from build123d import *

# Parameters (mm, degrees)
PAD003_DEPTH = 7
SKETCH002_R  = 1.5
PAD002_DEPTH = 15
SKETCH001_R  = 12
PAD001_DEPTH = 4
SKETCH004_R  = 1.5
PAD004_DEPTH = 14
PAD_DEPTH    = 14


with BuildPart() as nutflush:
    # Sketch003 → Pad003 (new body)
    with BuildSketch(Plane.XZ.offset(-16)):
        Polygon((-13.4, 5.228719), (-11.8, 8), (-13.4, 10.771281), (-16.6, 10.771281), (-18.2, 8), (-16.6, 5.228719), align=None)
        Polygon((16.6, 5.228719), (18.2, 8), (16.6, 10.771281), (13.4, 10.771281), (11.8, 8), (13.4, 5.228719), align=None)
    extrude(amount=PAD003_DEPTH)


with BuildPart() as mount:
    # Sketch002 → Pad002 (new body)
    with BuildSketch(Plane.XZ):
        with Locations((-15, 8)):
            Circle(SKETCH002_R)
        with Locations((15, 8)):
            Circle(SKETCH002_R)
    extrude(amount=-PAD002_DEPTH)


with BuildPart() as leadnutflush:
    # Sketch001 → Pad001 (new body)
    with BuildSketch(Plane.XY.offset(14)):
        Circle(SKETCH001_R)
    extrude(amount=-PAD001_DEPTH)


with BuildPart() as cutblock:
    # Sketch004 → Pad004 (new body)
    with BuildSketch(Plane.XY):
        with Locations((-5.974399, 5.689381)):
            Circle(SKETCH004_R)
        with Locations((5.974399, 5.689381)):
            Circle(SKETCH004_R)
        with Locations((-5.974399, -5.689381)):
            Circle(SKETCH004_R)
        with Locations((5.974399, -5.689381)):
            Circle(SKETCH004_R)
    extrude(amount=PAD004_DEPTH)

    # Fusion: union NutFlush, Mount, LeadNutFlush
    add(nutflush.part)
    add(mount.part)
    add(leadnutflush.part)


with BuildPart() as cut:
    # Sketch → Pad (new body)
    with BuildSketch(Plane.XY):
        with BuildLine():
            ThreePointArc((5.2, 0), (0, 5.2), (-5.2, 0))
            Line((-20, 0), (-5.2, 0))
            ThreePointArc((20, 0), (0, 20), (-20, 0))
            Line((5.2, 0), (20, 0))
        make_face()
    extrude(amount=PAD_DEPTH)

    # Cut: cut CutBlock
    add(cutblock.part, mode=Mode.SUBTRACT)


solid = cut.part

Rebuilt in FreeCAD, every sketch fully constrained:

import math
import FreeCAD as App
import Part
import Sketcher

V = App.Vector
Q = App.Units.Quantity


def add_polygon(sketch, points):
    """Adds a closed chain of lines whose ends are joined by coincident constraints."""
    first, n = sketch.GeometryCount, len(points)
    for a, b in zip(points, points[1:] + points[:1]):
        sketch.addGeometry(Part.LineSegment(App.Vector(*a, 0), App.Vector(*b, 0)), False)
    for i in range(n):
        sketch.addConstraint(Sketcher.Constraint("Coincident", first + i, 2, first + (i + 1) % n, 1))

doc = App.newDocument("Part")
params = doc.addObject("Spreadsheet::Sheet", "Params")
for row, (alias, value) in enumerate([
    ("sketch1_width", "3.2 mm"),
    ("sketch1_length", "3.2 mm"),
    ("pad1_length", "7 mm"),
    ("sketch2_diameter", "3 mm"),
    ("pad2_length", "15 mm"),
    ("sketch3_diameter", "24 mm"),
    ("pad3_length", "4 mm"),
    ("sketch4_diameter", "3 mm"),
    ("pad4_length", "14 mm"),
    ("sketch5_radius", "20 mm"),
    ("sketch5_radius2", "5.2 mm"),
    ("pad5_length", "14 mm"),
], start=1):
    params.set(f"A{row}", alias)
    params.set(f"B{row}", "=" + value)
    params.setAlias(f"B{row}", alias)

body = doc.addObject("PartDesign::Body", "Body")
body.AllowCompound = True

sketch1 = body.newObject("Sketcher::SketchObject", "Sketch")
sketch1.AttachmentSupport = (doc.getObject("XZ_Plane"), [""])
sketch1.MapMode = "FlatFace"
sketch1.AttachmentOffset = App.Placement(V(0, 0, -16), App.Rotation())
add_polygon(sketch1, [(-13.4, 5.2), (-11.8, 8), (-13.4, 10.8), (-16.6, 10.8), (-18.2, 8), (-16.6, 5.2)])
add_polygon(sketch1, [(16.6, 5.2), (18.2, 8), (16.6, 10.8), (13.4, 10.8), (11.8, 8), (13.4, 5.2)])
sketch1.addConstraint(Sketcher.Constraint("Horizontal", 2))
sketch1.addConstraint(Sketcher.Constraint("Horizontal", 5))
sketch1.addConstraint(Sketcher.Constraint("Horizontal", 8))
sketch1.addConstraint(Sketcher.Constraint("Horizontal", 11))
sketch1.addConstraint(Sketcher.Constraint("Symmetric", 3, 2, 6, 2, -2))
sketch1.addConstraint(Sketcher.Constraint("Symmetric", 2, 2, 7, 2, -2))
sketch1.addConstraint(Sketcher.Constraint("Symmetric", 0, 2, 9, 2, -2))
sketch1.addConstraint(Sketcher.Constraint("Symmetric", 5, 2, 10, 2, -2))
sketch1.addConstraint(Sketcher.Constraint("Parallel", 0, 3))
sketch1.addConstraint(Sketcher.Constraint("Parallel", 1, 4))
sketch1.addConstraint(Sketcher.Constraint("Parallel", 3, 6))
sketch1.addConstraint(Sketcher.Constraint("Parallel", 4, 7))
sketch1.addConstraint(Sketcher.Constraint("Parallel", 6, 9))
sketch1.addConstraint(Sketcher.Constraint("Horizontal", 0, 2, 3, 2))
sketch1.addConstraint(Sketcher.Constraint("Vertical", 2, 2, 4, 2))
sketch1.addConstraint(Sketcher.Constraint("Angle", 0, Q("59.999997 deg")))
sketch1.addConstraint(Sketcher.Constraint("DistanceX", 2, 2, 2, 1, 3.2))
sketch1.addConstraint(Sketcher.Constraint("DistanceY", -1, 1, 0, 2, 8.0))
sketch1.addConstraint(Sketcher.Constraint("DistanceX", 0, 2, 6, 2, 30.0))
sketch1.addConstraint(Sketcher.Constraint("Distance", 0, 3.2))
sketch1.setExpression("Constraints[28]", "Params.sketch1_width")
sketch1.setExpression("Constraints[31]", "Params.sketch1_length")
pad1 = body.newObject("PartDesign::Pad", "Pad")
pad1.Profile = sketch1
pad1.setExpression("Length", "Params.pad1_length")
body2 = doc.addObject("PartDesign::Body", "Body001")
body2.AllowCompound = True

sketch2 = body2.newObject("Sketcher::SketchObject", "Sketch001")
sketch2.AttachmentSupport = (doc.getObject("XZ_Plane001"), [""])
sketch2.MapMode = "FlatFace"
sketch2.addGeometry(Part.Circle(V(-15, 8, 0), V(0, 0, 1), 1.5), False)
sketch2.addGeometry(Part.Circle(V(15, 8, 0), V(0, 0, 1), 1.5), False)
sketch2.addConstraint(Sketcher.Constraint("Equal", 0, 1))
sketch2.addConstraint(Sketcher.Constraint("Symmetric", 0, 3, 1, 3, -2))
sketch2.addConstraint(Sketcher.Constraint("Diameter", 0, 3.0))
sketch2.addConstraint(Sketcher.Constraint("DistanceX", 0, 3, -1, 1, 15.0))
sketch2.addConstraint(Sketcher.Constraint("DistanceY", -1, 1, 0, 3, 8.0))
sketch2.setExpression("Constraints[2]", "Params.sketch2_diameter")
pad2 = body2.newObject("PartDesign::Pad", "Pad001")
pad2.Profile = sketch2
pad2.setExpression("Length", "Params.pad2_length")
pad2.Reversed = True
body3 = doc.addObject("PartDesign::Body", "Body002")

sketch3 = body3.newObject("Sketcher::SketchObject", "Sketch002")
sketch3.AttachmentSupport = (doc.getObject("XY_Plane002"), [""])
sketch3.MapMode = "FlatFace"
sketch3.AttachmentOffset = App.Placement(V(0, 0, 14), App.Rotation())
sketch3.addGeometry(Part.Circle(V(0, 0, 0), V(0, 0, 1), 12), False)
sketch3.addConstraint(Sketcher.Constraint("Coincident", 0, 3, -1, 1))
sketch3.addConstraint(Sketcher.Constraint("Diameter", 0, 24.0))
sketch3.setExpression("Constraints[1]", "Params.sketch3_diameter")
pad3 = body3.newObject("PartDesign::Pad", "Pad002")
pad3.Profile = sketch3
pad3.setExpression("Length", "Params.pad3_length")
pad3.Reversed = True
body4 = doc.addObject("PartDesign::Body", "Body003")
body4.AllowCompound = True

sketch4 = body4.newObject("Sketcher::SketchObject", "Sketch003")
sketch4.AttachmentSupport = (doc.getObject("XY_Plane003"), [""])
sketch4.MapMode = "FlatFace"
sketch4.addGeometry(Part.Circle(V(-6, 5.7, 0), V(0, 0, 1), 1.5), False)
sketch4.addGeometry(Part.Circle(V(6, 5.7, 0), V(0, 0, 1), 1.5), False)
sketch4.addGeometry(Part.Circle(V(-6, -5.7, 0), V(0, 0, 1), 1.5), False)
sketch4.addGeometry(Part.Circle(V(6, -5.7, 0), V(0, 0, 1), 1.5), False)
sketch4.addConstraint(Sketcher.Constraint("Equal", 0, 1))
sketch4.addConstraint(Sketcher.Constraint("Equal", 1, 2))
sketch4.addConstraint(Sketcher.Constraint("Equal", 2, 3))
sketch4.addConstraint(Sketcher.Constraint("Symmetric", 1, 3, 2, 3, -1, 1))
sketch4.addConstraint(Sketcher.Constraint("Symmetric", 0, 3, 3, 3, -1, 1))
sketch4.addConstraint(Sketcher.Constraint("Symmetric", 0, 3, 1, 3, -2))
sketch4.addConstraint(Sketcher.Constraint("Diameter", 0, 3.0))
sketch4.addConstraint(Sketcher.Constraint("DistanceX", 0, 3, -1, 1, 5.974399))
sketch4.addConstraint(Sketcher.Constraint("DistanceY", -1, 1, 0, 3, 5.689381))
sketch4.setExpression("Constraints[6]", "Params.sketch4_diameter")
pad4 = body4.newObject("PartDesign::Pad", "Pad003")
pad4.Profile = sketch4
pad4.setExpression("Length", "Params.pad4_length")
doc.recompute()

boolean = body4.newObject("PartDesign::Boolean", "Boolean")
boolean.Type = "Fuse"
boolean.addObjects([body])
doc.recompute()

boolean2 = body4.newObject("PartDesign::Boolean", "Boolean001")
boolean2.Type = "Fuse"
boolean2.addObjects([body2])
doc.recompute()

boolean3 = body4.newObject("PartDesign::Boolean", "Boolean002")
boolean3.Type = "Fuse"
boolean3.addObjects([body3])
body5 = doc.addObject("PartDesign::Body", "Body004")

sketch5 = body5.newObject("Sketcher::SketchObject", "Sketch004")
sketch5.AttachmentSupport = (doc.getObject("XY_Plane004"), [""])
sketch5.MapMode = "FlatFace"
sketch5.addGeometry(Part.ArcOfCircle(Part.Circle(V(0, 0, 0), V(0, 0, 1), 5), math.radians(0), math.radians(180)), False)
sketch5.addGeometry(Part.LineSegment(V(5, 0, 0), V(20, 0, 0)), False)
sketch5.addGeometry(Part.ArcOfCircle(Part.Circle(V(0, 0, 0), V(0, 0, 1), 20), math.radians(0), math.radians(180)), False)
sketch5.addGeometry(Part.LineSegment(V(-20, 0, 0), V(-5, 0, 0)), False)
sketch5.addConstraint(Sketcher.Constraint("Coincident", 0, 1, 1, 1))
sketch5.addConstraint(Sketcher.Constraint("Coincident", 1, 2, 2, 1))
sketch5.addConstraint(Sketcher.Constraint("Coincident", 2, 2, 3, 1))
sketch5.addConstraint(Sketcher.Constraint("Coincident", 3, 2, 0, 2))
sketch5.addConstraint(Sketcher.Constraint("Horizontal", 1))
sketch5.addConstraint(Sketcher.Constraint("Horizontal", 3))
sketch5.addConstraint(Sketcher.Constraint("Coincident", 0, 3, -1, 1))
sketch5.addConstraint(Sketcher.Constraint("Coincident", 2, 3, -1, 1))
sketch5.addConstraint(Sketcher.Constraint("PointOnObject", 0, 1, -1))
sketch5.addConstraint(Sketcher.Constraint("PointOnObject", 2, 2, -1))
sketch5.addConstraint(Sketcher.Constraint("Radius", 2, 20.0))
sketch5.addConstraint(Sketcher.Constraint("Radius", 0, 5.2))
sketch5.setExpression("Constraints[10]", "Params.sketch5_radius")
sketch5.setExpression("Constraints[11]", "Params.sketch5_radius2")
pad5 = body5.newObject("PartDesign::Pad", "Pad004")
pad5.Profile = sketch5
pad5.setExpression("Length", "Params.pad5_length")
doc.recompute()

boolean4 = body5.newObject("PartDesign::Boolean", "Boolean003")
boolean4.Type = "Cut"
boolean4.addObjects([body4])

doc.recompute()
